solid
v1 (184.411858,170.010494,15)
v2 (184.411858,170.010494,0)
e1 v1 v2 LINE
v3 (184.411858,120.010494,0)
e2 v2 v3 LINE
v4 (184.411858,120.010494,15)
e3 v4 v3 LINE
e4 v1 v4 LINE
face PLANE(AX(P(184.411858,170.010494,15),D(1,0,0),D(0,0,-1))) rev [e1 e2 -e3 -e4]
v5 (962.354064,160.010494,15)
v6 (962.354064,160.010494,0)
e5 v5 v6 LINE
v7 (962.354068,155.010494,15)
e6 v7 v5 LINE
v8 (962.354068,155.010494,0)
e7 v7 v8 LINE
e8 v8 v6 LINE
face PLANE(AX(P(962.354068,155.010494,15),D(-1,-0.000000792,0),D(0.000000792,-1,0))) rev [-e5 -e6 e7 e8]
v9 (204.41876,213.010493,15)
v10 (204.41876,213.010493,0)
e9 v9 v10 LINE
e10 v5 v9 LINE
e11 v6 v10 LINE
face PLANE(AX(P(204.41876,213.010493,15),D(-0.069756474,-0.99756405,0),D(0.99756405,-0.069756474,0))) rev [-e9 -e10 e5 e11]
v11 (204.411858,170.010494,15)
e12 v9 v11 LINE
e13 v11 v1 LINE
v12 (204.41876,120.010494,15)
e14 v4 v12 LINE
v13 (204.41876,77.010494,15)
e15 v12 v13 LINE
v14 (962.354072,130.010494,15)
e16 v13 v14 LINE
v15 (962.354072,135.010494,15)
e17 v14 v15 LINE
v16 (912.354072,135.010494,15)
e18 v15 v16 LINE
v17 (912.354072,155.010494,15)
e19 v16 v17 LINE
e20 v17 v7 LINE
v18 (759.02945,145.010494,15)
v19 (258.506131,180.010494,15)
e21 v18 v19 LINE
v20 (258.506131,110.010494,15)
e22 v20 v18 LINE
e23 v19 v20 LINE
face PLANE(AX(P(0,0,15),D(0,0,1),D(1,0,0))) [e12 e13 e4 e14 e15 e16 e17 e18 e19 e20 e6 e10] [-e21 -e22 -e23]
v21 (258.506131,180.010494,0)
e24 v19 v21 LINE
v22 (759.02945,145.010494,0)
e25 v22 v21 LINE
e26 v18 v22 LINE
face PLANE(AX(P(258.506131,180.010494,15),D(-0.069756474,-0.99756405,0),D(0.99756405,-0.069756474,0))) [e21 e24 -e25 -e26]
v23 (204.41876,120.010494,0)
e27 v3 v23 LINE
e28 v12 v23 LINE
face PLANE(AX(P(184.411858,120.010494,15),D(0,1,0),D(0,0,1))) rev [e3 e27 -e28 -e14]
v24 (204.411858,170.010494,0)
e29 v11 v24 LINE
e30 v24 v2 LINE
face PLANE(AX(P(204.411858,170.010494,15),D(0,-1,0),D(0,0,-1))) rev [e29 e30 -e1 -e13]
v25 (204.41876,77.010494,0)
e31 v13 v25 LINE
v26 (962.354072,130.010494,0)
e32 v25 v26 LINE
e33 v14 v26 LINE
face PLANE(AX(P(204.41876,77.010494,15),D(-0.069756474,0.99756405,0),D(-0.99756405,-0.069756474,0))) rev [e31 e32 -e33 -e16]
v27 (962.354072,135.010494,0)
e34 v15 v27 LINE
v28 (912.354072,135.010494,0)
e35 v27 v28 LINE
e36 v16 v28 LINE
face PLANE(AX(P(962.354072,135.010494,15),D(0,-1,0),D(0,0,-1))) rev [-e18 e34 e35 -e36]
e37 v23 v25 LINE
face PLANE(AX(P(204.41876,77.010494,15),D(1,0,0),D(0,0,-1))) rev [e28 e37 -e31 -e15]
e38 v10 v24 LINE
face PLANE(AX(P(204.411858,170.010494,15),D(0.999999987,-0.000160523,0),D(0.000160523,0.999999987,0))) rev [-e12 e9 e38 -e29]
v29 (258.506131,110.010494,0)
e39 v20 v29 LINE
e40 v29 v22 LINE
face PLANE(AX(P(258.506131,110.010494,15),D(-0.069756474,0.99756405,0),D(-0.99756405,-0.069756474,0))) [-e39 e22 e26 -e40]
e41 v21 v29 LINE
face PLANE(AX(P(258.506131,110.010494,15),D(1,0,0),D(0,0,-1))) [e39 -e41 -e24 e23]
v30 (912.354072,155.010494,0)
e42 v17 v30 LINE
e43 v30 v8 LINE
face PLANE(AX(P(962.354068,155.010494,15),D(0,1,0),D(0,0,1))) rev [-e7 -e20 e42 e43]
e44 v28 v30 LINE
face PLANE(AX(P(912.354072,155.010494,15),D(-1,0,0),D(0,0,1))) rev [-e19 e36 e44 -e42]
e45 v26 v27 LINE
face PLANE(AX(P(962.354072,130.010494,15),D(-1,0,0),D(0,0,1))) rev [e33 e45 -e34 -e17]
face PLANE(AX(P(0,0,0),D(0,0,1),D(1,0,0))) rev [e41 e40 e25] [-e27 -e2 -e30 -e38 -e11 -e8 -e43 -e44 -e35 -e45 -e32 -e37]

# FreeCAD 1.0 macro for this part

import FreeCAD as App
import Part
import Sketcher
Q = App.Units.Quantity

doc = App.newDocument("Part")
params = doc.addObject("Spreadsheet::Sheet", "Params")
for row, (alias, value) in enumerate([
    ("sketch1_width", "50 mm"),
    ("sketch1_width2", "20 mm"),
    ("sketch1_height", "43 mm"),
    ("sketch1_height2", "5 mm"),
    ("sketch1_height3", "70 mm"),
    ("pad1_length", "15 mm"),
], start=1):
    params.set(f"A{row}", alias)
    params.set(f"B{row}", "=" + value)
    params.setAlias(f"B{row}", alias)

body = doc.addObject("PartDesign::Body", "Body")

sketch1 = doc.addObject("Sketcher::SketchObject", "Sketch")
body.addObject(sketch1)
sketch1.AttachmentSupport = (doc.XY_Plane, [""])
sketch1.MapMode = "FlatFace"
sketch1.addGeometry(Part.LineSegment(App.Vector(184, 120, 0), App.Vector(204, 120, 0)), False)
sketch1.addGeometry(Part.LineSegment(App.Vector(204, 120, 0), App.Vector(204, 77, 0)), False)
sketch1.addGeometry(Part.LineSegment(App.Vector(204, 77, 0), App.Vector(962, 130, 0)), False)
sketch1.addGeometry(Part.LineSegment(App.Vector(962, 130, 0), App.Vector(962, 135, 0)), False)
sketch1.addGeometry(Part.LineSegment(App.Vector(962, 135, 0), App.Vector(912, 135, 0)), False)
sketch1.addGeometry(Part.LineSegment(App.Vector(912, 135, 0), App.Vector(912, 155, 0)), False)
sketch1.addGeometry(Part.LineSegment(App.Vector(912, 155, 0), App.Vector(962, 155, 0)), False)
sketch1.addGeometry(Part.LineSegment(App.Vector(962, 155, 0), App.Vector(962, 160, 0)), False)
sketch1.addGeometry(Part.LineSegment(App.Vector(962, 160, 0), App.Vector(204, 213, 0)), False)
sketch1.addGeometry(Part.LineSegment(App.Vector(204, 213, 0), App.Vector(204, 170, 0)), False)
sketch1.addGeometry(Part.LineSegment(App.Vector(204, 170, 0), App.Vector(184, 170, 0)), False)
sketch1.addGeometry(Part.LineSegment(App.Vector(184, 170, 0), App.Vector(184, 120, 0)), False)
sketch1.addGeometry(Part.LineSegment(App.Vector(759, 145, 0), App.Vector(259, 110, 0)), False)
sketch1.addGeometry(Part.LineSegment(App.Vector(259, 110, 0), App.Vector(259, 180, 0)), False)
sketch1.addGeometry(Part.LineSegment(App.Vector(259, 180, 0), App.Vector(759, 145, 0)), False)
sketch1.addConstraint(Sketcher.Constraint("Coincident", 0, 2, 1, 1))
sketch1.addConstraint(Sketcher.Constraint("Coincident", 1, 2, 2, 1))
sketch1.addConstraint(Sketcher.Constraint("Coincident", 2, 2, 3, 1))
sketch1.addConstraint(Sketcher.Constraint("Coincident", 3, 2, 4, 1))
sketch1.addConstraint(Sketcher.Constraint("Coincident", 4, 2, 5, 1))
sketch1.addConstraint(Sketcher.Constraint("Coincident", 5, 2, 6, 1))
sketch1.addConstraint(Sketcher.Constraint("Coincident", 6, 2, 7, 1))
sketch1.addConstraint(Sketcher.Constraint("Coincident", 7, 2, 8, 1))
sketch1.addConstraint(Sketcher.Constraint("Coincident", 8, 2, 9, 1))
sketch1.addConstraint(Sketcher.Constraint("Coincident", 9, 2, 10, 1))
sketch1.addConstraint(Sketcher.Constraint("Coincident", 10, 2, 11, 1))
sketch1.addConstraint(Sketcher.Constraint("Coincident", 11, 2, 0, 1))
sketch1.addConstraint(Sketcher.Constraint("Coincident", 12, 2, 13, 1))
sketch1.addConstraint(Sketcher.Constraint("Coincident", 13, 2, 14, 1))
sketch1.addConstraint(Sketcher.Constraint("Coincident", 14, 2, 12, 1))
sketch1.addConstraint(Sketcher.Constraint("Horizontal", 0))
sketch1.addConstraint(Sketcher.Constraint("Vertical", 1))
sketch1.addConstraint(Sketcher.Constraint("Vertical", 3))
sketch1.addConstraint(Sketcher.Constraint("Horizontal", 4))
sketch1.addConstraint(Sketcher.Constraint("Vertical", 5))
sketch1.addConstraint(Sketcher.Constraint("Horizontal", 6))
sketch1.addConstraint(Sketcher.Constraint("Horizontal", 10))
sketch1.addConstraint(Sketcher.Constraint("Vertical", 11))
sketch1.addConstraint(Sketcher.Constraint("Vertical", 13))
sketch1.addConstraint(Sketcher.Constraint("Parallel", 2, 12))
sketch1.addConstraint(Sketcher.Constraint("Parallel", 8, 14))
sketch1.addConstraint(Sketcher.Constraint("Vertical", 1, 2, 8, 2))
sketch1.addConstraint(Sketcher.Constraint("Equal", 10, 5))
sketch1.addConstraint(Sketcher.Constraint("Equal", 4, 11))
sketch1.addConstraint(Sketcher.Constraint("Equal", 12, 14))
sketch1.addConstraint(Sketcher.Constraint("DistanceX", 4, 2, 4, 1, 50.0))
sketch1.addConstraint(Sketcher.Constraint("DistanceX", 10, 2, 10, 1, 20.0))
sketch1.addConstraint(Sketcher.Constraint("DistanceY", 1, 2, 1, 1, 43.0))
sketch1.addConstraint(Sketcher.Constraint("DistanceY", 3, 1, 3, 2, 5.0))
sketch1.addConstraint(Sketcher.Constraint("DistanceY", 13, 1, 13, 2, 70.0))
sketch1.addConstraint(Sketcher.Constraint("Angle", 2, Q("4 deg")))
sketch1.addConstraint(Sketcher.Constraint("Distance", 7, 5.0))
sketch1.addConstraint(Sketcher.Constraint("Distance", 9, 43.0))
sketch1.addConstraint(Sketcher.Constraint("DistanceY", 0, 2, 2, 2, 10.0))
sketch1.addConstraint(Sketcher.Constraint("DistanceY", 12, 2, 0, 2, 10.0))
sketch1.addConstraint(Sketcher.Constraint("DistanceX", 0, 1, 0, 2, 20.006903))
sketch1.addConstraint(Sketcher.Constraint("DistanceX", 6, 1, 6, 2, 49.999996))
sketch1.addConstraint(Sketcher.Constraint("DistanceX", -1, 1, 0, 2, 204.41876))
sketch1.addConstraint(Sketcher.Constraint("DistanceX", -1, 1, 12, 2, 258.506131))
sketch1.addConstraint(Sketcher.Constraint("DistanceY", -1, 1, 0, 2, 120.010494))
sketch1.setExpression("Constraints[30]", "Params.sketch1_width")
sketch1.setExpression("Constraints[31]", "Params.sketch1_width2")
sketch1.setExpression("Constraints[32]", "Params.sketch1_height")
sketch1.setExpression("Constraints[33]", "Params.sketch1_height2")
sketch1.setExpression("Constraints[34]", "Params.sketch1_height3")
pad1 = doc.addObject("PartDesign::Pad", "Pad")
body.addObject(pad1)
pad1.Profile = sketch1
pad1.setExpression("Length", "Params.pad1_length")

doc.recompute()
